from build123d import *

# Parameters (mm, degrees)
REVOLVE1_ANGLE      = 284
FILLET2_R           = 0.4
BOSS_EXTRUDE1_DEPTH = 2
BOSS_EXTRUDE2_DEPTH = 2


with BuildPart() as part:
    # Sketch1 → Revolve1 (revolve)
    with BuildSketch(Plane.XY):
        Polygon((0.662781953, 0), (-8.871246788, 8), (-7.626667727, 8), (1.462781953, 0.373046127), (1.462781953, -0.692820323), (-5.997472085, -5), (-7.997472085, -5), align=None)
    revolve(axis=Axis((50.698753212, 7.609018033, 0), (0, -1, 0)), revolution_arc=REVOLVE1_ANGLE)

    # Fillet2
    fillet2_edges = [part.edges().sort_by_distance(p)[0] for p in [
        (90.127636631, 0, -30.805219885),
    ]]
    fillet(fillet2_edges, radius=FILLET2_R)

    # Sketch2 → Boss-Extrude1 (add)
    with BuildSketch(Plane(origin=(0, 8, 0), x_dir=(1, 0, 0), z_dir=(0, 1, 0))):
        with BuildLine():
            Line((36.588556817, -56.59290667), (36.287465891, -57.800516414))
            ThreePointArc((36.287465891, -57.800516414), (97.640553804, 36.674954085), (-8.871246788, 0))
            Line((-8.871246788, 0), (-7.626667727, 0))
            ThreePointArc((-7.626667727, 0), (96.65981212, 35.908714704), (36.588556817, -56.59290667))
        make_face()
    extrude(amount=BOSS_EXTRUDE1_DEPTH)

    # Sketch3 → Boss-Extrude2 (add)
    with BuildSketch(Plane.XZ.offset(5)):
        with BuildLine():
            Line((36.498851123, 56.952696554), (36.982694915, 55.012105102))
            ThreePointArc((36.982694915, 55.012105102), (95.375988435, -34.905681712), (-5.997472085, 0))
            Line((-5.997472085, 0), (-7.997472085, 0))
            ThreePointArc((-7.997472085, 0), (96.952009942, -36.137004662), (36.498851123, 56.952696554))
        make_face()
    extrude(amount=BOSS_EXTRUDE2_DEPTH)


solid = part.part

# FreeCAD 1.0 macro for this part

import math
import FreeCAD as App
import Part
import Sketcher
Q = App.Units.Quantity


def edges_at(feature, points):
    """Names of the edges that pass closest to the given points."""
    edges = feature.Shape.Edges
    near = lambda p: min(range(len(edges)), key=lambda i: edges[i].distToShape(Part.Vertex(*p))[0])
    return sorted({f"Edge{near(p) + 1}" for p in points})


def add_polygon(sketch, points):
    """Adds a closed chain of lines whose ends are joined by coincident constraints."""
    first, n = sketch.GeometryCount, len(points)
    for a, b in zip(points, points[1:] + points[:1]):
        sketch.addGeometry(Part.LineSegment(App.Vector(*a, 0), App.Vector(*b, 0)), False)
    for i in range(n):
        sketch.addConstraint(Sketcher.Constraint("Coincident", first + i, 2, first + (i + 1) % n, 1))

doc = App.newDocument("Part")
body = doc.addObject("PartDesign::Body", "Body")

# Sketch on XY plane
sketch1 = body.newObject("Sketcher::SketchObject", "Sketch")
sketch1.AttachmentSupport = (doc.getObject("XY_Plane"), [""])
sketch1.MapMode = "FlatFace"
add_polygon(sketch1, [(-8.9, 8), (0.7, 0), (-8, -5), (-6, -5), (1.5, -0.7), (1.5, 0.4), (-7.6, 8)])  # lines 0-6
sketch1.addGeometry(Part.LineSegment(App.Vector(50.7, 8, 0), App.Vector(50.7, -5, 0)), True)  # axis
sketch1.addConstraint([
    Sketcher.Constraint("Horizontal", 2),
    Sketcher.Constraint("Vertical", 4),
    Sketcher.Constraint("Horizontal", 6),
    Sketcher.Constraint("Vertical", 7),
    Sketcher.Constraint("PointOnObject", 0, 2, -1),
    Sketcher.Constraint("Parallel", 1, 3),
    Sketcher.Constraint("Parallel", 0, 5),
    Sketcher.Constraint("Horizontal", 6, 2, 7, 1),
    Sketcher.Constraint("Horizontal", 2, 2, 7, 2),
    Sketcher.Constraint("DistanceX", 2, 1, 2, 2, 2.0),
    Sketcher.Constraint("DistanceY", 7, 2, 7, 1, 13.0),
    Sketcher.Constraint("Angle", 0, Q("-40 deg")),
    Sketcher.Constraint("Angle", 1, Q("-150 deg")),
    Sketcher.Constraint("Distance", 1, 10.0),
    Sketcher.Constraint("DistanceX", 0, 2, 3, 2, 0.8),
    Sketcher.Constraint("DistanceX", 6, 2, 6, 1, 1.244579),
    Sketcher.Constraint("DistanceX", -1, 1, 0, 2, 0.662782),
    Sketcher.Constraint("DistanceX", 4, 2, 7, 1, 49.235971),
])
revolution = body.newObject("PartDesign::Revolution", "Revolution")
revolution.Profile = sketch1
revolution.ReferenceAxis = (sketch1, ["Axis0"])
revolution.Angle = 284
doc.recompute()

fillet = body.newObject("PartDesign::Fillet", "Fillet")
fillet.Base = (revolution, edges_at(revolution, [(90.128, 0, -30.805)]))
fillet.Radius = 0.4

# Sketch on XZ plane
sketch2 = body.newObject("Sketcher::SketchObject", "Sketch001")
sketch2.AttachmentSupport = (doc.getObject("XZ_Plane"), [""])
sketch2.MapMode = "FlatFace"
sketch2.AttachmentOffset = App.Placement(App.Vector(0, 0, -8), App.Rotation())
sketch2.addGeometry([
    Part.LineSegment(App.Vector(36.6, 56.6, 0), App.Vector(36.3, 57.8, 0)),
    Part.ArcOfCircle(Part.Circle(App.Vector(50.7, 0, 0), App.Vector(0, 0, 1), 59.6), math.radians(180), math.radians(464)),
    Part.LineSegment(App.Vector(-8.9, 0, 0), App.Vector(-7.6, 0, 0)),
    Part.ArcOfCircle(Part.Circle(App.Vector(50.7, 0, 0), App.Vector(0, 0, 1), 58.3), math.radians(180), math.radians(464)),
], False)
sketch2.addConstraint([
    Sketcher.Constraint("Coincident", 0, 2, 1, 2),
    Sketcher.Constraint("Coincident", 1, 1, 2, 1),
    Sketcher.Constraint("Coincident", 2, 2, 3, 1),
    Sketcher.Constraint("Coincident", 3, 2, 0, 1),
    Sketcher.Constraint("Horizontal", 2),
    Sketcher.Constraint("Coincident", 3, 3, 1, 3),
    Sketcher.Constraint("PointOnObject", 1, 3, -1),
    Sketcher.Constraint("PointOnObject", 1, 1, -1),
    Sketcher.Constraint("Angle", 0, Q("104 deg")),
    Sketcher.Constraint("Radius", 1, 59.57),
    Sketcher.Constraint("Radius", 3, 58.325421),
    Sketcher.Constraint("DistanceX", -1, 1, 1, 3, 50.698753),
    Sketcher.Constraint("DistanceX", -1, 1, 0, 2, 36.287466),
])
pad1 = body.newObject("PartDesign::Pad", "Pad")
pad1.Profile = sketch2
pad1.Length = 2
pad1.Reversed = True

# Sketch on XZ plane
sketch3 = body.newObject("Sketcher::SketchObject", "Sketch002")
sketch3.AttachmentSupport = (doc.getObject("XZ_Plane"), [""])
sketch3.MapMode = "FlatFace"
sketch3.AttachmentOffset = App.Placement(App.Vector(0, 0, 5), App.Rotation())
sketch3.addGeometry([
    Part.LineSegment(App.Vector(36.5, 57, 0), App.Vector(37, 55, 0)),
    Part.ArcOfCircle(Part.Circle(App.Vector(50.7, 0, 0), App.Vector(0, 0, 1), 56.7), math.radians(180), math.radians(464)),
    Part.LineSegment(App.Vector(-6, 0, 0), App.Vector(-8, 0, 0)),
    Part.ArcOfCircle(Part.Circle(App.Vector(50.7, 0, 0), App.Vector(0, 0, 1), 58.7), math.radians(180), math.radians(464)),
], False)
sketch3.addConstraint([
    Sketcher.Constraint("Coincident", 0, 2, 1, 2),
    Sketcher.Constraint("Coincident", 1, 1, 2, 1),
    Sketcher.Constraint("Coincident", 2, 2, 3, 1),
    Sketcher.Constraint("Coincident", 3, 2, 0, 1),
    Sketcher.Constraint("Horizontal", 2),
    Sketcher.Constraint("Coincident", 3, 3, 1, 3),
    Sketcher.Constraint("PointOnObject", 1, 3, -1),
    Sketcher.Constraint("PointOnObject", 1, 1, -1),
    Sketcher.Constraint("DistanceX", 2, 2, 2, 1, 2.0),
    Sketcher.Constraint("Angle", 0, Q("-76 deg")),
    Sketcher.Constraint("Radius", 1, 56.696225),
    Sketcher.Constraint("DistanceX", -1, 1, 3, 2, 36.498851),
    Sketcher.Constraint("DistanceX", 0, 2, 1, 3, 13.716058),
])
pad2 = body.newObject("PartDesign::Pad", "Pad001")
pad2.Profile = sketch3
pad2.Length = 2

doc.recompute()
